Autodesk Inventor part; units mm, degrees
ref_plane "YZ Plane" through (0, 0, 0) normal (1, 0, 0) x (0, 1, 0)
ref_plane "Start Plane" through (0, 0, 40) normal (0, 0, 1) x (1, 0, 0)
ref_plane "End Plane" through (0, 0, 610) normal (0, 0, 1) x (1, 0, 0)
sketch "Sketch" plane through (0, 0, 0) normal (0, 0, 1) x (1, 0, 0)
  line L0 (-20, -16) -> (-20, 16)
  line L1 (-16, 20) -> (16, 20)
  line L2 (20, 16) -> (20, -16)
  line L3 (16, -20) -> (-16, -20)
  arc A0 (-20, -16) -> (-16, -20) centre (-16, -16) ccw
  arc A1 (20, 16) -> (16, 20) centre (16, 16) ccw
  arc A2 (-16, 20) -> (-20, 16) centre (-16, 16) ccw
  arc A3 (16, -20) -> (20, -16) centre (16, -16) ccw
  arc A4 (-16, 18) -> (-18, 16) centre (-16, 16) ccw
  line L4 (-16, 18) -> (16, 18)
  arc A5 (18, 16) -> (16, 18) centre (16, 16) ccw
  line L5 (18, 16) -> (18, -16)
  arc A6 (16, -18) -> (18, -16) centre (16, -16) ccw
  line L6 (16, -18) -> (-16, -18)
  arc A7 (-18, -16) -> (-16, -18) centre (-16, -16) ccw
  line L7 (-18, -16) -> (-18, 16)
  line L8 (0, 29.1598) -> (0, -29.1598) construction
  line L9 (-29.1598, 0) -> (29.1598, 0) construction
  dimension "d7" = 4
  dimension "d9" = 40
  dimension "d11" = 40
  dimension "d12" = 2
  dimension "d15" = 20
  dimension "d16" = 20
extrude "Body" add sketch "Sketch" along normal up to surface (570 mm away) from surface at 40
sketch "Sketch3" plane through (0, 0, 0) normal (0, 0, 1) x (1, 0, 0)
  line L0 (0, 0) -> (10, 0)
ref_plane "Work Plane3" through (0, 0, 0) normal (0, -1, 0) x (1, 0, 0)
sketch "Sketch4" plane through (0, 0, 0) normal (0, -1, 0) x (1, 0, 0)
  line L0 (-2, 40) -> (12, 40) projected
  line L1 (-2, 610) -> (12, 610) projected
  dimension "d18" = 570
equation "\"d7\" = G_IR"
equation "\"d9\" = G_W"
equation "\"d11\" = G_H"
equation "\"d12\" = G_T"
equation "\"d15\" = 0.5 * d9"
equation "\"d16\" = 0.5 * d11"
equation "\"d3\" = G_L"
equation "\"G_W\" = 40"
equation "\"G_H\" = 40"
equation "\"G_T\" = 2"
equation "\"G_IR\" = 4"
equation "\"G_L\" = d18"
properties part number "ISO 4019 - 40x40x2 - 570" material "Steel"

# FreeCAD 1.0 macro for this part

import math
import FreeCAD as App
import Part
import Sketcher
from FreeCAD import Vector
Q = App.Units.Quantity

doc = App.newDocument("Part")
body = doc.addObject("PartDesign::Body", "Body")

# Sketch on XY plane
sketch1 = doc.addObject("Sketcher::SketchObject", "Sketch")
body.addObject(sketch1)
sketch1.AttachmentSupport = (doc.XY_Plane, [""])
sketch1.MapMode = "FlatFace"
sketch1.AttachmentOffset = App.Placement(Vector(0, 0, 40), App.Rotation())
sketch1.addGeometry(Part.LineSegment(Vector(-20, 16, 0), Vector(-20, -16, 0)), False)
sketch1.addGeometry(Part.ArcOfCircle(Part.Circle(Vector(-16, -16, 0), Vector(0, 0, 1), 4), math.radians(180), math.radians(270)), False)
sketch1.addGeometry(Part.LineSegment(Vector(-16, -20, 0), Vector(16, -20, 0)), False)
sketch1.addGeometry(Part.ArcOfCircle(Part.Circle(Vector(16, -16, 0), Vector(0, 0, 1), 4), math.radians(-90), math.radians(0)), False)
sketch1.addGeometry(Part.LineSegment(Vector(20, -16, 0), Vector(20, 16, 0)), False)
sketch1.addGeometry(Part.ArcOfCircle(Part.Circle(Vector(16, 16, 0), Vector(0, 0, 1), 4), math.radians(0), math.radians(90)), False)
sketch1.addGeometry(Part.LineSegment(Vector(16, 20, 0), Vector(-16, 20, 0)), False)
sketch1.addGeometry(Part.ArcOfCircle(Part.Circle(Vector(-16, 16, 0), Vector(0, 0, 1), 4), math.radians(90), math.radians(180)), False)
sketch1.addGeometry(Part.ArcOfCircle(Part.Circle(Vector(-16, 16, 0), Vector(0, 0, 1), 2), math.radians(90), math.radians(180)), False)
sketch1.addGeometry(Part.LineSegment(Vector(-16, 18, 0), Vector(16, 18, 0)), False)
sketch1.addGeometry(Part.ArcOfCircle(Part.Circle(Vector(16, 16, 0), Vector(0, 0, 1), 2), math.radians(0), math.radians(90)), False)
sketch1.addGeometry(Part.LineSegment(Vector(18, 16, 0), Vector(18, -16, 0)), False)
sketch1.addGeometry(Part.ArcOfCircle(Part.Circle(Vector(16, -16, 0), Vector(0, 0, 1), 2), math.radians(-90), math.radians(0)), False)
sketch1.addGeometry(Part.LineSegment(Vector(16, -18, 0), Vector(-16, -18, 0)), False)
sketch1.addGeometry(Part.ArcOfCircle(Part.Circle(Vector(-16, -16, 0), Vector(0, 0, 1), 2), math.radians(180), math.radians(270)), False)
sketch1.addGeometry(Part.LineSegment(Vector(-18, -16, 0), Vector(-18, 16, 0)), False)
sketch1.addConstraint(Sketcher.Constraint("Tangent", 0, 2, 1, 1))
sketch1.addConstraint(Sketcher.Constraint("Tangent", 1, 2, 2, 1))
sketch1.addConstraint(Sketcher.Constraint("Tangent", 2, 2, 3, 1))
sketch1.addConstraint(Sketcher.Constraint("Tangent", 3, 2, 4, 1))
sketch1.addConstraint(Sketcher.Constraint("Tangent", 4, 2, 5, 1))
sketch1.addConstraint(Sketcher.Constraint("Tangent", 5, 2, 6, 1))
sketch1.addConstraint(Sketcher.Constraint("Tangent", 6, 2, 7, 1))
sketch1.addConstraint(Sketcher.Constraint("Tangent", 7, 2, 0, 1))
sketch1.addConstraint(Sketcher.Constraint("Tangent", 8, 1, 9, 1))
sketch1.addConstraint(Sketcher.Constraint("Tangent", 9, 2, 10, 2))
sketch1.addConstraint(Sketcher.Constraint("Tangent", 10, 1, 11, 1))
sketch1.addConstraint(Sketcher.Constraint("Tangent", 11, 2, 12, 2))
sketch1.addConstraint(Sketcher.Constraint("Tangent", 12, 1, 13, 1))
sketch1.addConstraint(Sketcher.Constraint("Tangent", 13, 2, 14, 2))
sketch1.addConstraint(Sketcher.Constraint("Tangent", 14, 1, 15, 1))
sketch1.addConstraint(Sketcher.Constraint("Tangent", 15, 2, 8, 2))
sketch1.addConstraint(Sketcher.Constraint("Vertical", 0))
sketch1.addConstraint(Sketcher.Constraint("Horizontal", 2))
sketch1.addConstraint(Sketcher.Constraint("Vertical", 4))
sketch1.addConstraint(Sketcher.Constraint("Horizontal", 6))
sketch1.addConstraint(Sketcher.Constraint("Horizontal", 9))
sketch1.addConstraint(Sketcher.Constraint("Vertical", 11))
sketch1.addConstraint(Sketcher.Constraint("Horizontal", 13))
sketch1.addConstraint(Sketcher.Constraint("Vertical", 15))
sketch1.addConstraint(Sketcher.Constraint("Coincident", 8, 3, 7, 3))
sketch1.addConstraint(Sketcher.Constraint("Coincident", 10, 3, 5, 3))
sketch1.addConstraint(Sketcher.Constraint("Coincident", 12, 3, 3, 3))
sketch1.addConstraint(Sketcher.Constraint("Equal", 1, 3))
sketch1.addConstraint(Sketcher.Constraint("Equal", 3, 5))
sketch1.addConstraint(Sketcher.Constraint("Equal", 5, 7))
sketch1.addConstraint(Sketcher.Constraint("Equal", 12, 14))
sketch1.addConstraint(Sketcher.Constraint("Symmetric", 1, 3, 5, 3, -1, 1))
sketch1.addConstraint(Sketcher.Constraint("Equal", 13, 0))
sketch1.addConstraint(Sketcher.Constraint("Radius", 1, Q("4 mm")))
sketch1.addConstraint(Sketcher.Constraint("Radius", 8, Q("2 mm")))
sketch1.addConstraint(Sketcher.Constraint("DistanceX", 0, 2, -1, 1, Q("20 mm")))
pad1 = doc.addObject("PartDesign::Pad", "Pad")
body.addObject(pad1)
pad1.Profile = sketch1
pad1.Length = 570

doc.recompute()
